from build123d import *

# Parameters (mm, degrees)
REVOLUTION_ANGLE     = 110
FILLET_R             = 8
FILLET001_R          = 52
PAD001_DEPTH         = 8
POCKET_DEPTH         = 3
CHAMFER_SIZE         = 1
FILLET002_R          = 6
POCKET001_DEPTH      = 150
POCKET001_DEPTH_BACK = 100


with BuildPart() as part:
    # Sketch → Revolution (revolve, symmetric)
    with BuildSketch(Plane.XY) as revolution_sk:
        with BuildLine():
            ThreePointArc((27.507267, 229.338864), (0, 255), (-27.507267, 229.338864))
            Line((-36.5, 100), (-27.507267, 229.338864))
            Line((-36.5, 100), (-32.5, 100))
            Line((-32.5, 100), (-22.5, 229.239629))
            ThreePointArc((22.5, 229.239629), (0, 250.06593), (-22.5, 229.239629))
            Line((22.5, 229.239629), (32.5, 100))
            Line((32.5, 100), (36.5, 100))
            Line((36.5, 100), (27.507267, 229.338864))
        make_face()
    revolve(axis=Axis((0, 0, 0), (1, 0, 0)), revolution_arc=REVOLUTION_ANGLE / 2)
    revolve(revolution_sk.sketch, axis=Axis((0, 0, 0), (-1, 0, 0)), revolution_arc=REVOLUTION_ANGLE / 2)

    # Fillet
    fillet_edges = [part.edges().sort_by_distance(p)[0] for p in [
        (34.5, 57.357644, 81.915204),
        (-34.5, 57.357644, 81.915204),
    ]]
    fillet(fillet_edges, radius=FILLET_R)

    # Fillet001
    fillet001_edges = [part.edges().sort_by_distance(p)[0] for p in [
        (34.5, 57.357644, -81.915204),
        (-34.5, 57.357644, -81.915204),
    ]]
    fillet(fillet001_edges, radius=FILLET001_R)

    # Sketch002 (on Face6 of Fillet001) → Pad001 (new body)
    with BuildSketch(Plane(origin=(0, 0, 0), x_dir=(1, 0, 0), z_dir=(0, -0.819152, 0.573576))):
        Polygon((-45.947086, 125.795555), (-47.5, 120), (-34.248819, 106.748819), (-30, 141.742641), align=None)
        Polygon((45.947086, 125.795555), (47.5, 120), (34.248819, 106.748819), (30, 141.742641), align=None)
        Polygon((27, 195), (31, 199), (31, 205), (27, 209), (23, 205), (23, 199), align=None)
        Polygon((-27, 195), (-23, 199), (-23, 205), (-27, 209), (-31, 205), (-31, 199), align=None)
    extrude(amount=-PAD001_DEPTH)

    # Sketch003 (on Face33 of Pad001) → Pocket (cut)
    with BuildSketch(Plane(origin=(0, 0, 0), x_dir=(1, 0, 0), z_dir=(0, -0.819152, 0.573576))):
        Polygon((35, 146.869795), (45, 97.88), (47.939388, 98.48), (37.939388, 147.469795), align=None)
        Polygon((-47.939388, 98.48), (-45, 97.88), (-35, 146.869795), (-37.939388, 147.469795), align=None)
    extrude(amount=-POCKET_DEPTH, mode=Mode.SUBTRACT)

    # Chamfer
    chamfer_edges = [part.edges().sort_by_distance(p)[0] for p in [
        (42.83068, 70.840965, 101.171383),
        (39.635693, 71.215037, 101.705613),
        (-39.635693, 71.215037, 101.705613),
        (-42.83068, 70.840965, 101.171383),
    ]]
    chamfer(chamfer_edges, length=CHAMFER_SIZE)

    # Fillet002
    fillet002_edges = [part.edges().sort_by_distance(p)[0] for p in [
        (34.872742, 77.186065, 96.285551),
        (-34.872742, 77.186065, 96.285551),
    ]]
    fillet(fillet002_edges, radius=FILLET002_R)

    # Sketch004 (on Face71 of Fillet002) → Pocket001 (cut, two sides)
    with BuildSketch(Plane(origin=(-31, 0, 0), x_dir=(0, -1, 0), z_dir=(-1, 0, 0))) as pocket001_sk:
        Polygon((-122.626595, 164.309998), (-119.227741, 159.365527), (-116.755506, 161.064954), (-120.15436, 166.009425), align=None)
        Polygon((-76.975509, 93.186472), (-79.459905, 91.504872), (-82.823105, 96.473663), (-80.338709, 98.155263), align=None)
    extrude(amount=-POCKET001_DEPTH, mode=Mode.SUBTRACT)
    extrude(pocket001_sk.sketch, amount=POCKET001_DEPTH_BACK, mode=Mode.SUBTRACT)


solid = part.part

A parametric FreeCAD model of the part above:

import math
import FreeCAD as App
import Part
import Sketcher
from FreeCAD import Vector
Q = App.Units.Quantity


def edges_at(feature, points):
    """Names of the edges that pass closest to the given points."""
    edges = feature.Shape.Edges
    near = lambda p: min(range(len(edges)), key=lambda i: edges[i].distToShape(Part.Vertex(*p))[0])
    return sorted({f"Edge{near(p) + 1}" for p in points})

doc = App.newDocument("Part")
body = doc.addObject("PartDesign::Body", "Body")

# Sketch on XY plane
sketch1 = doc.addObject("Sketcher::SketchObject", "Sketch")
body.addObject(sketch1)
sketch1.AttachmentSupport = (doc.XY_Plane, [""])
sketch1.MapMode = "FlatFace"
sketch1.addGeometry([
    Part.ArcOfCircle(Part.Circle(Vector(0, 227.426325, 0), Vector(0, 0, 1), 27.573675), math.radians(3.977288), math.radians(176.022712)),  # 0
    Part.LineSegment(Vector(-27.507267, 229.338864, 0), Vector(-36.5, 100, 0)),  # 1
    Part.LineSegment(Vector(-36.5, 100, 0), Vector(-32.5, 100, 0)),  # 2
    Part.LineSegment(Vector(-32.5, 100, 0), Vector(-22.5, 229.239629, 0)),  # 3
    Part.ArcOfCircle(Part.Circle(Vector(0, 227.498677, 0), Vector(0, 0, 1), 22.567253), math.radians(4.424482), math.radians(175.575518)),  # 4
    Part.LineSegment(Vector(22.5, 229.239629, 0), Vector(32.5, 100, 0)),  # 5
    Part.LineSegment(Vector(32.5, 100, 0), Vector(36.5, 100, 0)),  # 6
    Part.LineSegment(Vector(36.5, 100, 0), Vector(27.507267, 229.338864, 0)),  # 7
], False)
sketch1.addConstraint([
    Sketcher.Constraint("Tangent", 0, 2, 1, 1),
    Sketcher.Constraint("Coincident", 1, 2, 2, 1),
    Sketcher.Constraint("Coincident", 2, 2, 3, 1),
    Sketcher.Constraint("Tangent", 3, 2, 4, 2),
    Sketcher.Constraint("Tangent", 4, 1, 5, 1),
    Sketcher.Constraint("Coincident", 5, 2, 6, 1),
    Sketcher.Constraint("Coincident", 6, 2, 7, 1),
    Sketcher.Constraint("Tangent", 7, 2, 0, 1),
    Sketcher.Constraint("Horizontal", 2),
    Sketcher.Constraint("Horizontal", 6),
    Sketcher.Constraint("Symmetric", 3, 2, 4, 1, -2),
    Sketcher.Constraint("Symmetric", 1, 2, 6, 2, -2),
    Sketcher.Constraint("PointOnObject", 0, 3, -2),
    Sketcher.Constraint("DistanceX", 2, 1, 2, 2, Q("4 mm")),
    Sketcher.Constraint("DistanceY", -1, 1, 1, 2, Q("100 mm")),
    Sketcher.Constraint("DistanceX", 2, 2, 3, 2, Q("10 mm")),
    Sketcher.Constraint("DistanceX", 3, 2, 4, 1, Q("45 mm")),
    Sketcher.Constraint("Radius", 0, Q("27.573675 mm")),
    Sketcher.Constraint("Distance", 3, Q("129.62593 mm")),
    Sketcher.Constraint("DistanceY", 0, 3, 4, 3, Q("0.072352 mm")),
])
revolution = doc.addObject("PartDesign::Revolution", "Revolution")
body.addObject(revolution)
revolution.Profile = sketch1
revolution.ReferenceAxis = (sketch1, ["H_Axis"])
revolution.Angle = 55

# Sketch on XY plane
sketch2 = doc.addObject("Sketcher::SketchObject", "Sketch001")
body.addObject(sketch2)
sketch2.AttachmentSupport = (doc.XY_Plane, [""])
sketch2.MapMode = "FlatFace"
sketch2.addGeometry([
    Part.ArcOfCircle(Part.Circle(Vector(0, 227.426325, 0), Vector(0, 0, 1), 27.573675), math.radians(3.977288), math.radians(176.022712)),  # 0
    Part.LineSegment(Vector(-27.507267, 229.338864, 0), Vector(-36.5, 100, 0)),  # 1
    Part.LineSegment(Vector(-36.5, 100, 0), Vector(-32.5, 100, 0)),  # 2
    Part.LineSegment(Vector(-32.5, 100, 0), Vector(-22.5, 229.239629, 0)),  # 3
    Part.ArcOfCircle(Part.Circle(Vector(0, 227.498677, 0), Vector(0, 0, 1), 22.567253), math.radians(4.424482), math.radians(175.575518)),  # 4
    Part.LineSegment(Vector(22.5, 229.239629, 0), Vector(32.5, 100, 0)),  # 5
    Part.LineSegment(Vector(32.5, 100, 0), Vector(36.5, 100, 0)),  # 6
    Part.LineSegment(Vector(36.5, 100, 0), Vector(27.507267, 229.338864, 0)),  # 7
], False)
sketch2.addConstraint([
    Sketcher.Constraint("Tangent", 0, 2, 1, 1),
    Sketcher.Constraint("Coincident", 1, 2, 2, 1),
    Sketcher.Constraint("Coincident", 2, 2, 3, 1),
    Sketcher.Constraint("Tangent", 3, 2, 4, 2),
    Sketcher.Constraint("Tangent", 4, 1, 5, 1),
    Sketcher.Constraint("Coincident", 5, 2, 6, 1),
    Sketcher.Constraint("Coincident", 6, 2, 7, 1),
    Sketcher.Constraint("Tangent", 7, 2, 0, 1),
    Sketcher.Constraint("Horizontal", 2),
    Sketcher.Constraint("Horizontal", 6),
    Sketcher.Constraint("Symmetric", 3, 2, 4, 1, -2),
    Sketcher.Constraint("Symmetric", 1, 2, 6, 2, -2),
    Sketcher.Constraint("PointOnObject", 0, 3, -2),
    Sketcher.Constraint("DistanceX", 2, 1, 2, 2, Q("4 mm")),
    Sketcher.Constraint("DistanceY", -1, 1, 1, 2, Q("100 mm")),
    Sketcher.Constraint("DistanceX", 2, 2, 3, 2, Q("10 mm")),
    Sketcher.Constraint("DistanceX", 3, 2, 4, 1, Q("45 mm")),
    Sketcher.Constraint("Radius", 0, Q("27.573675 mm")),
    Sketcher.Constraint("Distance", 3, Q("129.62593 mm")),
    Sketcher.Constraint("DistanceY", 0, 3, 4, 3, Q("0.072352 mm")),
])
revolution2 = doc.addObject("PartDesign::Revolution", "Revolution001")
body.addObject(revolution2)
revolution2.Profile = sketch2
revolution2.ReferenceAxis = (sketch2, ["H_Axis"])
revolution2.Angle = 55
revolution2.Reversed = True
doc.recompute()

fillet = doc.addObject("PartDesign::Fillet", "Fillet")
body.addObject(fillet)
fillet.Base = (revolution2, edges_at(revolution2, [(34.5, 57.358, 81.915), (-34.5, 57.358, 81.915)]))
fillet.Radius = 8
doc.recompute()

fillet2 = doc.addObject("PartDesign::Fillet", "Fillet001")
body.addObject(fillet2)
fillet2.Base = (fillet, edges_at(fillet, [(34.5, 57.358, -81.915), (-34.5, 57.358, -81.915)]))
fillet2.Radius = 52

# Sketch on an angled plane
sketch3 = doc.addObject("Sketcher::SketchObject", "Sketch002")
body.addObject(sketch3)
sketch3.Placement = App.Placement(Vector(0, 0, 0), App.Rotation(Vector(1, 0, 0), Vector(0, 0.573576164, 0.819152235), Vector(0, -0.819152235, 0.573576164), "ZXY"))
sketch3.addGeometry([
    Part.LineSegment(Vector(-45.947086, 125.795555, 0), Vector(-47.5, 120, 0)),  # 0
    Part.LineSegment(Vector(-47.5, 120, 0), Vector(-34.248819, 106.748819, 0)),  # 1
    Part.LineSegment(Vector(-34.248819, 106.748819, 0), Vector(-30, 141.742641, 0)),  # 2
    Part.LineSegment(Vector(-30, 141.742641, 0), Vector(-45.947086, 125.795555, 0)),  # 3
    Part.LineSegment(Vector(47.5, 120, 0), Vector(45.947086, 125.795555, 0)),  # 4
    Part.LineSegment(Vector(45.947086, 125.795555, 0), Vector(30, 141.742641, 0)),  # 5
    Part.LineSegment(Vector(30, 141.742641, 0), Vector(34.248819, 106.748819, 0)),  # 6
    Part.LineSegment(Vector(34.248819, 106.748819, 0), Vector(47.5, 120, 0)),  # 7
    Part.LineSegment(Vector(27, 195, 0), Vector(31, 199, 0)),  # 8
    Part.LineSegment(Vector(31, 199, 0), Vector(31, 205, 0)),  # 9
    Part.LineSegment(Vector(31, 205, 0), Vector(27, 209, 0)),  # 10
    Part.LineSegment(Vector(27, 209, 0), Vector(23, 205, 0)),  # 11
    Part.LineSegment(Vector(23, 205, 0), Vector(23, 199, 0)),  # 12
    Part.LineSegment(Vector(23, 199, 0), Vector(27, 195, 0)),  # 13
    Part.LineSegment(Vector(-27, 195, 0), Vector(-23, 199, 0)),  # 14
    Part.LineSegment(Vector(-23, 199, 0), Vector(-23, 205, 0)),  # 15
    Part.LineSegment(Vector(-23, 205, 0), Vector(-27, 209, 0)),  # 16
    Part.LineSegment(Vector(-27, 209, 0), Vector(-31, 205, 0)),  # 17
    Part.LineSegment(Vector(-31, 205, 0), Vector(-31, 199, 0)),  # 18
    Part.LineSegment(Vector(-31, 199, 0), Vector(-27, 195, 0)),  # 19
], False)
sketch3.addConstraint([
    Sketcher.Constraint("Coincident", 0, 2, 1, 1),
    Sketcher.Constraint("Coincident", 1, 2, 2, 1),
    Sketcher.Constraint("Coincident", 2, 2, 3, 1),
    Sketcher.Constraint("Coincident", 3, 2, 0, 1),
    Sketcher.Constraint("Coincident", 4, 2, 5, 1),
    Sketcher.Constraint("Coincident", 5, 2, 6, 1),
    Sketcher.Constraint("Coincident", 6, 2, 7, 1),
    Sketcher.Constraint("Coincident", 7, 2, 4, 1),
    Sketcher.Constraint("Coincident", 8, 2, 9, 1),
    Sketcher.Constraint("Coincident", 9, 2, 10, 1),
    Sketcher.Constraint("Coincident", 10, 2, 11, 1),
    Sketcher.Constraint("Coincident", 11, 2, 12, 1),
    Sketcher.Constraint("Coincident", 12, 2, 13, 1),
    Sketcher.Constraint("Coincident", 13, 2, 8, 1),
    Sketcher.Constraint("Coincident", 14, 2, 15, 1),
    Sketcher.Constraint("Coincident", 15, 2, 16, 1),
    Sketcher.Constraint("Coincident", 16, 2, 17, 1),
    Sketcher.Constraint("Coincident", 17, 2, 18, 1),
    Sketcher.Constraint("Coincident", 18, 2, 19, 1),
    Sketcher.Constraint("Coincident", 19, 2, 14, 1),
    Sketcher.Constraint("Vertical", 9),
    Sketcher.Constraint("Vertical", 12),
    Sketcher.Constraint("Vertical", 15),
    Sketcher.Constraint("Vertical", 18),
    Sketcher.Constraint("Symmetric", 3, 2, 4, 2, -2),
    Sketcher.Constraint("Symmetric", 2, 2, 5, 2, -2),
    Sketcher.Constraint("Symmetric", 1, 2, 6, 2, -2),
    Sketcher.Constraint("Symmetric", 0, 2, 7, 2, -2),
    Sketcher.Constraint("Symmetric", 12, 2, 14, 2, -2),
    Sketcher.Constraint("Symmetric", 10, 2, 16, 2, -2),
    Sketcher.Constraint("Symmetric", 9, 2, 17, 2, -2),
    Sketcher.Constraint("Symmetric", 13, 2, 19, 2, -2),
    Sketcher.Constraint("Perpendicular", 1, 3),
    Sketcher.Constraint("Perpendicular", 3, 5),
    Sketcher.Constraint("Parallel", 7, 8),
    Sketcher.Constraint("Perpendicular", 8, 10),
    Sketcher.Constraint("Perpendicular", 10, 11),
    Sketcher.Constraint("Perpendicular", 11, 13),
    Sketcher.Constraint("Perpendicular", 14, 16),
    Sketcher.Constraint("Perpendicular", 17, 19),
    Sketcher.Constraint("Horizontal", 9, 2, 11, 2),
    Sketcher.Constraint("Horizontal", 8, 2, 12, 2),
    Sketcher.Constraint("DistanceY", 9, 1, 9, 2, Q("6 mm")),
    Sketcher.Constraint("Angle", 0, Q("-104.999997 deg")),
    Sketcher.Constraint("Distance", 0, Q("6 mm")),
    Sketcher.Constraint("DistanceY", -1, 1, 0, 2, Q("120 mm")),
    Sketcher.Constraint("DistanceX", 2, 2, -1, 1, Q("30 mm")),
    Sketcher.Constraint("DistanceX", -1, 1, 8, 2, Q("31 mm")),
    Sketcher.Constraint("DistanceY", -1, 1, 8, 2, Q("199 mm")),
    Sketcher.Constraint("DistanceX", -1, 1, 10, 2, Q("27 mm")),
    Sketcher.Constraint("DistanceX", 0, 2, -1, 1, Q("47.5 mm")),
    Sketcher.Constraint("Distance", 1, Q("18.74 mm")),
])
pad1 = doc.addObject("PartDesign::Pad", "Pad")
body.addObject(pad1)
pad1.Profile = sketch3
pad1.Length = 8
pad1.Reversed = True

# Sketch on an angled plane
sketch4 = doc.addObject("Sketcher::SketchObject", "Sketch003")
body.addObject(sketch4)
sketch4.Placement = App.Placement(Vector(0, 0, 0), App.Rotation(Vector(1, 0, 0), Vector(0, 0.573576164, 0.819152235), Vector(0, -0.819152235, 0.573576164), "ZXY"))
sketch4.addGeometry([
    Part.LineSegment(Vector(35, 146.869795, 0), Vector(45, 97.88, 0)),  # 0
    Part.LineSegment(Vector(45, 97.88, 0), Vector(47.939388, 98.48, 0)),  # 1
    Part.LineSegment(Vector(47.939388, 98.48, 0), Vector(37.939388, 147.469795, 0)),  # 2
    Part.LineSegment(Vector(37.939388, 147.469795, 0), Vector(35, 146.869795, 0)),  # 3
    Part.LineSegment(Vector(-47.939388, 98.48, 0), Vector(-45, 97.88, 0)),  # 4
    Part.LineSegment(Vector(-45, 97.88, 0), Vector(-35, 146.869795, 0)),  # 5
    Part.LineSegment(Vector(-35, 146.869795, 0), Vector(-37.939388, 147.469795, 0)),  # 6
    Part.LineSegment(Vector(-37.939388, 147.469795, 0), Vector(-47.939388, 98.48, 0)),  # 7
], False)
sketch4.addConstraint([
    Sketcher.Constraint("Coincident", 0, 2, 1, 1),
    Sketcher.Constraint("Coincident", 1, 2, 2, 1),
    Sketcher.Constraint("Coincident", 2, 2, 3, 1),
    Sketcher.Constraint("Coincident", 3, 2, 0, 1),
    Sketcher.Constraint("Coincident", 4, 2, 5, 1),
    Sketcher.Constraint("Coincident", 5, 2, 6, 1),
    Sketcher.Constraint("Coincident", 6, 2, 7, 1),
    Sketcher.Constraint("Coincident", 7, 2, 4, 1),
    Sketcher.Constraint("Symmetric", 0, 2, 4, 2, -2),
    Sketcher.Constraint("Symmetric", 3, 2, 5, 2, -2),
    Sketcher.Constraint("Symmetric", 2, 2, 6, 2, -2),
    Sketcher.Constraint("Symmetric", 1, 2, 7, 2, -2),
    Sketcher.Constraint("Perpendicular", 0, 1),
    Sketcher.Constraint("Perpendicular", 1, 2),
    Sketcher.Constraint("Perpendicular", 2, 3),
    Sketcher.Constraint("Distance", 0, Q("50 mm")),
    Sketcher.Constraint("Distance", 1, Q("3 mm")),
    Sketcher.Constraint("DistanceX", -1, 1, 0, 2, Q("45 mm")),
    Sketcher.Constraint("DistanceX", -1, 1, 3, 2, Q("35 mm")),
    Sketcher.Constraint("DistanceY", -1, 1, 0, 2, Q("97.88 mm")),
])
pocket1 = doc.addObject("PartDesign::Pocket", "Pocket")
body.addObject(pocket1)
pocket1.Profile = sketch4
pocket1.Length = 3
doc.recompute()

chamfer = doc.addObject("PartDesign::Chamfer", "Chamfer")
body.addObject(chamfer)
chamfer.Base = (pocket1, edges_at(pocket1, [
    (42.831, 70.841, 101.171),
    (39.636, 71.215, 101.706),
    (-39.636, 71.215, 101.706),
    (-42.831, 70.841, 101.171),
]))
chamfer.Size = 1
doc.recompute()

fillet3 = doc.addObject("PartDesign::Fillet", "Fillet002")
body.addObject(fillet3)
fillet3.Base = (chamfer, edges_at(chamfer, [(34.873, 77.186, 96.286), (-34.873, 77.186, 96.286)]))
fillet3.Radius = 6

# Sketch on YZ plane
sketch5 = doc.addObject("Sketcher::SketchObject", "Sketch004")
body.addObject(sketch5)
sketch5.AttachmentSupport = (doc.YZ_Plane, [""])
sketch5.MapMode = "FlatFace"
sketch5.AttachmentOffset = App.Placement(Vector(0, 0, -31), App.Rotation())
sketch5.addGeometry([
    Part.LineSegment(Vector(122.626595, 164.309998, 0), Vector(119.227741, 159.365527, 0)),  # 0
    Part.LineSegment(Vector(119.227741, 159.365527, 0), Vector(116.755506, 161.064954, 0)),  # 1
    Part.LineSegment(Vector(116.755506, 161.064954, 0), Vector(120.15436, 166.009425, 0)),  # 2
    Part.LineSegment(Vector(120.15436, 166.009425, 0), Vector(122.626595, 164.309998, 0)),  # 3
    Part.LineSegment(Vector(79.459905, 91.504872, 0), Vector(76.975509, 93.186472, 0)),  # 4
    Part.LineSegment(Vector(76.975509, 93.186472, 0), Vector(80.338709, 98.155263, 0)),  # 5
    Part.LineSegment(Vector(80.338709, 98.155263, 0), Vector(82.823105, 96.473663, 0)),  # 6
    Part.LineSegment(Vector(82.823105, 96.473663, 0), Vector(79.459905, 91.504872, 0)),  # 7
], False)
sketch5.addConstraint([
    Sketcher.Constraint("Coincident", 0, 2, 1, 1),
    Sketcher.Constraint("Coincident", 1, 2, 2, 1),
    Sketcher.Constraint("Coincident", 2, 2, 3, 1),
    Sketcher.Constraint("Coincident", 3, 2, 0, 1),
    Sketcher.Constraint("Coincident", 4, 2, 5, 1),
    Sketcher.Constraint("Coincident", 5, 2, 6, 1),
    Sketcher.Constraint("Coincident", 6, 2, 7, 1),
    Sketcher.Constraint("Coincident", 7, 2, 4, 1),
    Sketcher.Constraint("Perpendicular", 0, 1),
    Sketcher.Constraint("Perpendicular", 1, 2),
    Sketcher.Constraint("Perpendicular", 2, 3),
    Sketcher.Constraint("Perpendicular", 4, 5),
    Sketcher.Constraint("Perpendicular", 5, 6),
    Sketcher.Constraint("Perpendicular", 6, 7),
    Sketcher.Constraint("Equal", 3, 4),
    Sketcher.Constraint("Equal", 2, 5),
    Sketcher.Constraint("Distance", 0, Q("6 mm")),
    Sketcher.Constraint("Distance", 1, Q("3 mm")),
    Sketcher.Constraint("DistanceY", -1, 1, 3, 2, Q("164.309998 mm")),
    Sketcher.Constraint("DistanceY", 0, 2, 2, 2, Q("6.643898 mm")),
    Sketcher.Constraint("DistanceX", 4, 2, 5, 2, Q("3.3632 mm")),
    Sketcher.Constraint("DistanceX", 6, 2, 1, 2, Q("33.932401 mm")),
    Sketcher.Constraint("DistanceX", -1, 1, 0, 2, Q("119.227741 mm")),
    Sketcher.Constraint("DistanceY", -1, 1, 4, 2, Q("93.186472 mm")),
])
pocket2 = doc.addObject("PartDesign::Pocket", "Pocket001")
body.addObject(pocket2)
pocket2.Profile = sketch5
pocket2.Type = "ThroughAll"
pocket2.Midplane = True

doc.recompute()
